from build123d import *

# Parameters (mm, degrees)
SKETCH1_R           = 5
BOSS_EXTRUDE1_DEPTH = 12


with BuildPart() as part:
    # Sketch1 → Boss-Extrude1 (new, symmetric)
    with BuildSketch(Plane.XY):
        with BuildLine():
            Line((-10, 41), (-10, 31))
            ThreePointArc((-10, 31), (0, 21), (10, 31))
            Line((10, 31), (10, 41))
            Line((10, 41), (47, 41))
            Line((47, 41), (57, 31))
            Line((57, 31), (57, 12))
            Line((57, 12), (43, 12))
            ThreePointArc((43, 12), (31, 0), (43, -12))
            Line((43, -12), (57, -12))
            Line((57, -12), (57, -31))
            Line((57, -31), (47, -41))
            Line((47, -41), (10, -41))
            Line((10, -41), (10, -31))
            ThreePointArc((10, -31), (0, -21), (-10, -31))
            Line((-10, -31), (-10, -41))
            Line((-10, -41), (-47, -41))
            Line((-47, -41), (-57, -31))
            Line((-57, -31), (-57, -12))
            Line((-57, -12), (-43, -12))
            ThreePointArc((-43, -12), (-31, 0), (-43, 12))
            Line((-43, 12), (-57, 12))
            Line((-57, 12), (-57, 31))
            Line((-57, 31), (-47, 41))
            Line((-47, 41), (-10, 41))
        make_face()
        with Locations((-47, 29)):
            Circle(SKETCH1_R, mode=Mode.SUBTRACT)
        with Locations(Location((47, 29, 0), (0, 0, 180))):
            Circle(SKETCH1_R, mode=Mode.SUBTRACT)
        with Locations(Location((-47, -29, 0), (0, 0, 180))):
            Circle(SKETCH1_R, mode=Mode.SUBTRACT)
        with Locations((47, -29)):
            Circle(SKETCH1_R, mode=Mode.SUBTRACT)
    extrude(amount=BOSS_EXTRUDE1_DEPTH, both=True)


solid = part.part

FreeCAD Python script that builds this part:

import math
import FreeCAD as App
import Part
import Sketcher

doc = App.newDocument("Part")
body = doc.addObject("PartDesign::Body", "Body")

# Sketch on XY plane
sketch1 = doc.addObject("Sketcher::SketchObject", "Sketch")
body.addObject(sketch1)
sketch1.AttachmentSupport = (doc.XY_Plane, [""])
sketch1.MapMode = "FlatFace"
sketch1.addGeometry(Part.LineSegment(App.Vector(-10, 31, 0), App.Vector(-10, 41, 0)), False)
sketch1.addGeometry(Part.LineSegment(App.Vector(-10, 41, 0), App.Vector(-47, 41, 0)), False)
sketch1.addGeometry(Part.LineSegment(App.Vector(-47, 41, 0), App.Vector(-57, 31, 0)), False)
sketch1.addGeometry(Part.LineSegment(App.Vector(-57, 31, 0), App.Vector(-57, 12, 0)), False)
sketch1.addGeometry(Part.LineSegment(App.Vector(-57, 12, 0), App.Vector(-43, 12, 0)), False)
sketch1.addGeometry(Part.ArcOfCircle(Part.Circle(App.Vector(-43, 0, 0), App.Vector(0, 0, 1), 12), math.radians(-90), math.radians(90)), False)
sketch1.addGeometry(Part.LineSegment(App.Vector(-43, -12, 0), App.Vector(-57, -12, 0)), False)
sketch1.addGeometry(Part.LineSegment(App.Vector(-57, -12, 0), App.Vector(-57, -31, 0)), False)
sketch1.addGeometry(Part.LineSegment(App.Vector(-57, -31, 0), App.Vector(-47, -41, 0)), False)
sketch1.addGeometry(Part.LineSegment(App.Vector(-47, -41, 0), App.Vector(-10, -41, 0)), False)
sketch1.addGeometry(Part.LineSegment(App.Vector(-10, -41, 0), App.Vector(-10, -31, 0)), False)
sketch1.addGeometry(Part.ArcOfCircle(Part.Circle(App.Vector(0, -31, 0), App.Vector(0, 0, 1), 10), math.radians(0), math.radians(180)), False)
sketch1.addGeometry(Part.LineSegment(App.Vector(10, -31, 0), App.Vector(10, -41, 0)), False)
sketch1.addGeometry(Part.LineSegment(App.Vector(10, -41, 0), App.Vector(47, -41, 0)), False)
sketch1.addGeometry(Part.LineSegment(App.Vector(47, -41, 0), App.Vector(57, -31, 0)), False)
sketch1.addGeometry(Part.LineSegment(App.Vector(57, -31, 0), App.Vector(57, -12, 0)), False)
sketch1.addGeometry(Part.LineSegment(App.Vector(57, -12, 0), App.Vector(43, -12, 0)), False)
sketch1.addGeometry(Part.ArcOfCircle(Part.Circle(App.Vector(43, 0, 0), App.Vector(0, 0, 1), 12), math.radians(90), math.radians(270)), False)
sketch1.addGeometry(Part.LineSegment(App.Vector(43, 12, 0), App.Vector(57, 12, 0)), False)
sketch1.addGeometry(Part.LineSegment(App.Vector(57, 12, 0), App.Vector(57, 31, 0)), False)
sketch1.addGeometry(Part.LineSegment(App.Vector(57, 31, 0), App.Vector(47, 41, 0)), False)
sketch1.addGeometry(Part.LineSegment(App.Vector(47, 41, 0), App.Vector(10, 41, 0)), False)
sketch1.addGeometry(Part.LineSegment(App.Vector(10, 41, 0), App.Vector(10, 31, 0)), False)
sketch1.addGeometry(Part.ArcOfCircle(Part.Circle(App.Vector(0, 31, 0), App.Vector(0, 0, 1), 10), math.radians(180), math.radians(360)), False)
sketch1.addGeometry(Part.Circle(App.Vector(47, -29, 0), App.Vector(0, 0, 1), 5), False)
sketch1.addGeometry(Part.Circle(App.Vector(-47, -29, 0), App.Vector(0, 0, 1), 5), False)
sketch1.addGeometry(Part.Circle(App.Vector(47, 29, 0), App.Vector(0, 0, 1), 5), False)
sketch1.addGeometry(Part.Circle(App.Vector(-47, 29, 0), App.Vector(0, 0, 1), 5), False)
sketch1.addConstraint(Sketcher.Constraint("Coincident", 0, 2, 1, 1))
sketch1.addConstraint(Sketcher.Constraint("Coincident", 1, 2, 2, 1))
sketch1.addConstraint(Sketcher.Constraint("Coincident", 2, 2, 3, 1))
sketch1.addConstraint(Sketcher.Constraint("Coincident", 3, 2, 4, 1))
sketch1.addConstraint(Sketcher.Constraint("Tangent", 4, 2, 5, 2))
sketch1.addConstraint(Sketcher.Constraint("Tangent", 5, 1, 6, 1))
sketch1.addConstraint(Sketcher.Constraint("Coincident", 6, 2, 7, 1))
sketch1.addConstraint(Sketcher.Constraint("Coincident", 7, 2, 8, 1))
sketch1.addConstraint(Sketcher.Constraint("Coincident", 8, 2, 9, 1))
sketch1.addConstraint(Sketcher.Constraint("Coincident", 9, 2, 10, 1))
sketch1.addConstraint(Sketcher.Constraint("Tangent", 10, 2, 11, 2))
sketch1.addConstraint(Sketcher.Constraint("Tangent", 11, 1, 12, 1))
sketch1.addConstraint(Sketcher.Constraint("Coincident", 12, 2, 13, 1))
sketch1.addConstraint(Sketcher.Constraint("Coincident", 13, 2, 14, 1))
sketch1.addConstraint(Sketcher.Constraint("Coincident", 14, 2, 15, 1))
sketch1.addConstraint(Sketcher.Constraint("Coincident", 15, 2, 16, 1))
sketch1.addConstraint(Sketcher.Constraint("Tangent", 16, 2, 17, 2))
sketch1.addConstraint(Sketcher.Constraint("Tangent", 17, 1, 18, 1))
sketch1.addConstraint(Sketcher.Constraint("Coincident", 18, 2, 19, 1))
sketch1.addConstraint(Sketcher.Constraint("Coincident", 19, 2, 20, 1))
sketch1.addConstraint(Sketcher.Constraint("Coincident", 20, 2, 21, 1))
sketch1.addConstraint(Sketcher.Constraint("Coincident", 21, 2, 22, 1))
sketch1.addConstraint(Sketcher.Constraint("Tangent", 22, 2, 23, 2))
sketch1.addConstraint(Sketcher.Constraint("Tangent", 23, 1, 0, 1))
sketch1.addConstraint(Sketcher.Constraint("Vertical", 0))
sketch1.addConstraint(Sketcher.Constraint("Horizontal", 1))
sketch1.addConstraint(Sketcher.Constraint("Vertical", 3))
sketch1.addConstraint(Sketcher.Constraint("Horizontal", 4))
sketch1.addConstraint(Sketcher.Constraint("Horizontal", 6))
sketch1.addConstraint(Sketcher.Constraint("Vertical", 7))
sketch1.addConstraint(Sketcher.Constraint("Horizontal", 9))
sketch1.addConstraint(Sketcher.Constraint("Vertical", 10))
sketch1.addConstraint(Sketcher.Constraint("Vertical", 12))
sketch1.addConstraint(Sketcher.Constraint("Horizontal", 13))
sketch1.addConstraint(Sketcher.Constraint("Vertical", 15))
sketch1.addConstraint(Sketcher.Constraint("Horizontal", 16))
sketch1.addConstraint(Sketcher.Constraint("Horizontal", 18))
sketch1.addConstraint(Sketcher.Constraint("Vertical", 19))
sketch1.addConstraint(Sketcher.Constraint("Horizontal", 21))
sketch1.addConstraint(Sketcher.Constraint("Vertical", 22))
sketch1.addConstraint(Sketcher.Constraint("Equal", 5, 17))
sketch1.addConstraint(Sketcher.Constraint("Equal", 11, 23))
sketch1.addConstraint(Sketcher.Constraint("Equal", 24, 25))
sketch1.addConstraint(Sketcher.Constraint("Equal", 25, 26))
sketch1.addConstraint(Sketcher.Constraint("Equal", 26, 27))
sketch1.addConstraint(Sketcher.Constraint("Symmetric", 5, 3, 17, 3, -1, 1))
sketch1.addConstraint(Sketcher.Constraint("Symmetric", 11, 3, 23, 3, -1, 1))
sketch1.addConstraint(Sketcher.Constraint("Symmetric", 25, 3, 26, 3, -1, 1))
sketch1.addConstraint(Sketcher.Constraint("Symmetric", 24, 3, 27, 3, -1, 1))
sketch1.addConstraint(Sketcher.Constraint("Symmetric", 1, 2, 13, 2, -1, 1))
sketch1.addConstraint(Sketcher.Constraint("Symmetric", 2, 2, 14, 2, -1, 1))
sketch1.addConstraint(Sketcher.Constraint("Symmetric", 7, 2, 19, 2, -1, 1))
sketch1.addConstraint(Sketcher.Constraint("Symmetric", 8, 2, 20, 2, -1, 1))
sketch1.addConstraint(Sketcher.Constraint("Symmetric", 24, 3, 25, 3, -2))
sketch1.addConstraint(Sketcher.Constraint("Symmetric", 9, 2, 12, 2, -2))
sketch1.addConstraint(Sketcher.Constraint("Symmetric", 7, 2, 14, 2, -2))
sketch1.addConstraint(Sketcher.Constraint("PointOnObject", 5, 3, -1))
sketch1.addConstraint(Sketcher.Constraint("Perpendicular", 2, 8))
sketch1.addConstraint(Sketcher.Constraint("Horizontal", 23, 3, 2, 2))
sketch1.addConstraint(Sketcher.Constraint("Vertical", 27, 3, 1, 2))
sketch1.addConstraint(Sketcher.Constraint("Vertical", 1, 2, 8, 2))
sketch1.addConstraint(Sketcher.Constraint("Diameter", 24, 10.0))
sketch1.addConstraint(Sketcher.Constraint("Radius", 5, 12.0))
sketch1.addConstraint(Sketcher.Constraint("Radius", 11, 10.0))
sketch1.addConstraint(Sketcher.Constraint("DistanceX", 1, 2, 1, 1, 37.0))
sketch1.addConstraint(Sketcher.Constraint("DistanceX", 4, 1, 4, 2, 14.0))
sketch1.addConstraint(Sketcher.Constraint("DistanceY", 0, 1, 0, 2, 10.0))
sketch1.addConstraint(Sketcher.Constraint("DistanceY", 3, 2, 3, 1, 19.0))
sketch1.addConstraint(Sketcher.Constraint("DistanceY", 24, 3, -1, 1, 29.0))
pad1 = doc.addObject("PartDesign::Pad", "Pad")
body.addObject(pad1)
pad1.Profile = sketch1
pad1.Length = 24
pad1.Midplane = True

doc.recompute()
